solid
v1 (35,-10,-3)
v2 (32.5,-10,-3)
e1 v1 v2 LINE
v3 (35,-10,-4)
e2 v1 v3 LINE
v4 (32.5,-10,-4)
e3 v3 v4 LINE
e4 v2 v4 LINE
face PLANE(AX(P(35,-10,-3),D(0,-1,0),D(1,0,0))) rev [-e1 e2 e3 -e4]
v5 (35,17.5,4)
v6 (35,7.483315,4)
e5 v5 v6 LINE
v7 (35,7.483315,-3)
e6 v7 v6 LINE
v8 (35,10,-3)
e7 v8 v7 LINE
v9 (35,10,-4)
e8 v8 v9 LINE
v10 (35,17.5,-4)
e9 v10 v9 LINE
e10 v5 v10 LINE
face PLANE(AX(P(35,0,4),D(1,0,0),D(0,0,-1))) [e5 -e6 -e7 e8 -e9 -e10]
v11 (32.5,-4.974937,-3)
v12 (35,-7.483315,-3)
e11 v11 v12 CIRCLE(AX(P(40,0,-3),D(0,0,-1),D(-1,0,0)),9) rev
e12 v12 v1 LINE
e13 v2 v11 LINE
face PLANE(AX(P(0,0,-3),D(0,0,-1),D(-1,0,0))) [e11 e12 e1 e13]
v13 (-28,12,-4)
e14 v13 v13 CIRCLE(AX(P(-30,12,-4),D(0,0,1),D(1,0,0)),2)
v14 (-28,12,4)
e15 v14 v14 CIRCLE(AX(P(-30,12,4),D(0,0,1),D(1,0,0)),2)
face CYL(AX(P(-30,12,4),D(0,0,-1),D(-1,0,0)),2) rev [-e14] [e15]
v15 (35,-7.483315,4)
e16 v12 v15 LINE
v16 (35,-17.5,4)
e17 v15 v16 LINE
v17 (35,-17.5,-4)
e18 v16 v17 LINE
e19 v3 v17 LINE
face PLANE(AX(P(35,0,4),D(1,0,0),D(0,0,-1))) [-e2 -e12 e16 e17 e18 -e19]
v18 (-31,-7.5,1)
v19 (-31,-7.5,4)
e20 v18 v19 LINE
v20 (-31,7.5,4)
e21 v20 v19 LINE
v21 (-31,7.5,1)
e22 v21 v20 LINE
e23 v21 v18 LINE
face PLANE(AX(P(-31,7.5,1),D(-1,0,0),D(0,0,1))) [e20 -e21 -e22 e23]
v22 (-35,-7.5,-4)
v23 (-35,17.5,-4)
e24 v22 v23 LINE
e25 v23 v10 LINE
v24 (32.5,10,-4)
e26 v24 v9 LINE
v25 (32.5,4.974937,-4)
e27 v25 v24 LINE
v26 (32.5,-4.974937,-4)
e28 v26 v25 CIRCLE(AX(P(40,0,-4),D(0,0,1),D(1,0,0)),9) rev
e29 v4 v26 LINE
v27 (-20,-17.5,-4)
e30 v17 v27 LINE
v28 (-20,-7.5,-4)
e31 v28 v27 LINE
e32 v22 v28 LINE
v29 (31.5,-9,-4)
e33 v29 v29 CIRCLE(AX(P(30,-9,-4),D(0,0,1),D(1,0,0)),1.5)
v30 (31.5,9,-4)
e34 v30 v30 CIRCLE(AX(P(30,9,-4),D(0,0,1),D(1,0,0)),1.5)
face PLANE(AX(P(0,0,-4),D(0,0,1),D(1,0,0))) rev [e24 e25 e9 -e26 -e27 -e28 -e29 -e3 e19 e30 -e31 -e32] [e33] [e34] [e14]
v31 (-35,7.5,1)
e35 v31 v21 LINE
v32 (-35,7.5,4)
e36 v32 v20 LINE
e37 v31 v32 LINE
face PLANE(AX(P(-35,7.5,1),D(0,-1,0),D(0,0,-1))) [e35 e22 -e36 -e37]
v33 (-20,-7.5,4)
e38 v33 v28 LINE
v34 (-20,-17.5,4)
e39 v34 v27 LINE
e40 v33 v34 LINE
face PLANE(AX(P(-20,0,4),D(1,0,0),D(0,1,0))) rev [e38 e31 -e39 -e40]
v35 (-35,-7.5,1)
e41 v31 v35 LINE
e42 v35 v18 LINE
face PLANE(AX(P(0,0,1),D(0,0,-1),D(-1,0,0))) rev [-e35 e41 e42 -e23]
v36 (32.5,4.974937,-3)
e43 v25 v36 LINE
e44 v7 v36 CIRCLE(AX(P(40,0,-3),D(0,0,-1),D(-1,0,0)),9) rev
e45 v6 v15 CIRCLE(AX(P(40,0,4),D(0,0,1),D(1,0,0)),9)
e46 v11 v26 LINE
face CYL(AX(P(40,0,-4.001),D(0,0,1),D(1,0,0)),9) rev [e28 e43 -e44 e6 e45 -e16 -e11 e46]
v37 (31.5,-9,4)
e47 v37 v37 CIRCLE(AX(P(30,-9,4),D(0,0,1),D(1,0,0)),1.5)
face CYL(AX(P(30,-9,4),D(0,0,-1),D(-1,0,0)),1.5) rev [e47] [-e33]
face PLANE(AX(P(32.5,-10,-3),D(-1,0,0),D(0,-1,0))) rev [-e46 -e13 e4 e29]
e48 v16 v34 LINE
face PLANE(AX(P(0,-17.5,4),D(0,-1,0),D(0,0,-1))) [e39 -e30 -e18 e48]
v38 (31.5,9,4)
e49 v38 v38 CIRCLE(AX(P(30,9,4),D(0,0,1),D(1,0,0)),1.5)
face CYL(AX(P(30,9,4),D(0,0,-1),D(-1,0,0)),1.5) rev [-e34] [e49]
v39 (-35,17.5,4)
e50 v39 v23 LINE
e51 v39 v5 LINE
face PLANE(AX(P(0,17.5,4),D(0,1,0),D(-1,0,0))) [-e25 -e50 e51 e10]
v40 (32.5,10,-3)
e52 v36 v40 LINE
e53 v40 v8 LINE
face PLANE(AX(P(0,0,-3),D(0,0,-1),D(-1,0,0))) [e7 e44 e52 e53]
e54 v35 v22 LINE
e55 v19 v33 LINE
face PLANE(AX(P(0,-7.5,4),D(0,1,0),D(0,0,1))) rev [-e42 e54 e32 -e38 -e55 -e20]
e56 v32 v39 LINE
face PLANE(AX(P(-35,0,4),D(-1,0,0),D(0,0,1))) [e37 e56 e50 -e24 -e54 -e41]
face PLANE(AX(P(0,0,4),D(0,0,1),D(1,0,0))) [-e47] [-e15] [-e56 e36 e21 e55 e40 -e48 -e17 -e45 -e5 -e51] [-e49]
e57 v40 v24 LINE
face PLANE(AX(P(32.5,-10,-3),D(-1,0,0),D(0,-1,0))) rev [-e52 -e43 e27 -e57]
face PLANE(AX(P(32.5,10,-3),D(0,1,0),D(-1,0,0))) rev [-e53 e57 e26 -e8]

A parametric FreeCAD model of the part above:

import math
import FreeCAD as App
import Part
import Sketcher
from FreeCAD import Vector


def add_polygon(sketch, points):
    """Adds a closed chain of lines whose ends are joined by coincident constraints."""
    first, n = sketch.GeometryCount, len(points)
    for a, b in zip(points, points[1:] + points[:1]):
        sketch.addGeometry(Part.LineSegment(App.Vector(*a, 0), App.Vector(*b, 0)), False)
    for i in range(n):
        sketch.addConstraint(Sketcher.Constraint("Coincident", first + i, 2, first + (i + 1) % n, 1))

doc = App.newDocument("Part")
body = doc.addObject("PartDesign::Body", "Body")

sketch1 = body.newObject("Sketcher::SketchObject", "Sketch")
sketch1.AttachmentSupport = (doc.getObject("XY_Plane"), [""])
sketch1.MapMode = "FlatFace"
add_polygon(sketch1, [(-20, -17.5), (35, -17.5), (35, 17.5), (-35, 17.5), (-35, -7.5), (-20, -7.5)])
sketch1.addGeometry(Part.ArcOfCircle(Part.Circle(Vector(30, -9, 0), Vector(0, 0, 1), 1.5), math.radians(0), math.radians(90)), False)
sketch1.addGeometry(Part.ArcOfCircle(Part.Circle(Vector(30, -9, 0), Vector(0, 0, 1), 1.5), math.radians(90), math.radians(360)), False)
sketch1.addGeometry(Part.Circle(Vector(-30, 12, 0), Vector(0, 0, 1), 2), False)
sketch1.addGeometry(Part.ArcOfCircle(Part.Circle(Vector(30, 9, 0), Vector(0, 0, 1), 1.5), math.radians(0), math.radians(270)), False)
sketch1.addGeometry(Part.ArcOfCircle(Part.Circle(Vector(30, 9, 0), Vector(0, 0, 1), 1.5), math.radians(-90), math.radians(0)), False)
sketch1.addConstraint([
    Sketcher.Constraint("Tangent", 6, 1, 7, 2),
    Sketcher.Constraint("Coincident", 7, 1, 6, 2),
    Sketcher.Constraint("Tangent", 9, 1, 10, 2),
    Sketcher.Constraint("Coincident", 10, 1, 9, 2),
    Sketcher.Constraint("Horizontal", 0),
    Sketcher.Constraint("Vertical", 1),
    Sketcher.Constraint("Horizontal", 2),
    Sketcher.Constraint("Vertical", 3),
    Sketcher.Constraint("Horizontal", 4),
    Sketcher.Constraint("Vertical", 5),
    Sketcher.Constraint("Equal", 7, 9),
    Sketcher.Constraint("Symmetric", 0, 2, 2, 2, -1, 1),
    Sketcher.Constraint("Symmetric", 6, 3, 9, 3, -1),
    Sketcher.Constraint("Horizontal", 7, 3, 6, 1),
    Sketcher.Constraint("Horizontal", 4, 2, 7, 1),
    Sketcher.Constraint("Horizontal", 10, 3, 9, 1),
    Sketcher.Constraint("Vertical", 10, 3, 7, 1),
    Sketcher.Constraint("Vertical", 7, 1, 10, 1),
    Sketcher.Constraint("Diameter", 8, 4.0),
    Sketcher.Constraint("Radius", 6, 1.5),
    Sketcher.Constraint("DistanceX", 0, 1, 0, 2, 55.0),
    Sketcher.Constraint("DistanceX", 2, 2, 2, 1, 70.0),
    Sketcher.Constraint("DistanceY", 1, 1, 1, 2, 35.0),
    Sketcher.Constraint("DistanceY", 3, 2, 3, 1, 25.0),
    Sketcher.Constraint("DistanceX", -1, 1, 6, 3, 30.0),
    Sketcher.Constraint("DistanceX", 8, 3, -1, 1, 30.0),
    Sketcher.Constraint("DistanceY", -1, 1, 8, 3, 12.0),
])
pad1 = body.newObject("PartDesign::Pad", "Pad")
pad1.Profile = sketch1
pad1.Length = 8
pad1.Midplane = True

sketch2 = body.newObject("Sketcher::SketchObject", "Sketch001")
sketch2.AttachmentSupport = (doc.getObject("XY_Plane"), [""])
sketch2.MapMode = "FlatFace"
sketch2.AttachmentOffset = App.Placement(Vector(0, 0, 4), App.Rotation())
add_polygon(sketch2, [(-35, 7.5), (-35, -7.5), (-31, -7.5), (-31, 7.5)])
sketch2.addConstraint([
    Sketcher.Constraint("Vertical", 0),
    Sketcher.Constraint("Horizontal", 1),
    Sketcher.Constraint("Vertical", 2),
    Sketcher.Constraint("Horizontal", 3),
    Sketcher.Constraint("DistanceX", 1, 1, 1, 2, 4.0),
    Sketcher.Constraint("DistanceY", 0, 2, 0, 1, 15.0),
    Sketcher.Constraint("DistanceX", 0, 2, -1, 1, 35.0),
    Sketcher.Constraint("DistanceY", 0, 2, -1, 1, 7.5),
])
pocket1 = body.newObject("PartDesign::Pocket", "Pocket")
pocket1.Profile = sketch2
pocket1.Length = 3

sketch3 = body.newObject("Sketcher::SketchObject", "Sketch002")
sketch3.AttachmentSupport = (doc.getObject("XY_Plane"), [""])
sketch3.MapMode = "FlatFace"
sketch3.AttachmentOffset = App.Placement(Vector(0, 0, -4), App.Rotation())
add_polygon(sketch3, [(35, 10), (35, -10), (32.5, -10), (32.5, 10)])
sketch3.addConstraint([
    Sketcher.Constraint("Vertical", 0),
    Sketcher.Constraint("Horizontal", 1),
    Sketcher.Constraint("Vertical", 2),
    Sketcher.Constraint("Horizontal", 3),
    Sketcher.Constraint("DistanceY", 0, 2, 0, 1, 20.0),
    Sketcher.Constraint("DistanceX", 1, 2, 1, 1, 2.5),
    Sketcher.Constraint("DistanceX", -1, 1, 0, 2, 35.0),
    Sketcher.Constraint("DistanceY", 0, 2, -1, 1, 10.0),
])
pocket2 = body.newObject("PartDesign::Pocket", "Pocket001")
pocket2.Profile = sketch3
pocket2.Length = 1
pocket2.Reversed = True

sketch4 = body.newObject("Sketcher::SketchObject", "Sketch003")
sketch4.AttachmentSupport = (doc.getObject("XY_Plane"), [""])
sketch4.MapMode = "FlatFace"
sketch4.AttachmentOffset = App.Placement(Vector(0, 0, 4), App.Rotation())
sketch4.addGeometry(Part.Circle(Vector(40, 0, 0), Vector(0, 0, 1), 9), False)
sketch4.addConstraint([
    Sketcher.Constraint("PointOnObject", 0, 3, -1),
    Sketcher.Constraint("Diameter", 0, 18.0),
    Sketcher.Constraint("DistanceX", -1, 1, 0, 3, 40.0),
])
pocket3 = body.newObject("PartDesign::Pocket", "Pocket002")
pocket3.Profile = sketch4
pocket3.Length = 8

doc.recompute()
